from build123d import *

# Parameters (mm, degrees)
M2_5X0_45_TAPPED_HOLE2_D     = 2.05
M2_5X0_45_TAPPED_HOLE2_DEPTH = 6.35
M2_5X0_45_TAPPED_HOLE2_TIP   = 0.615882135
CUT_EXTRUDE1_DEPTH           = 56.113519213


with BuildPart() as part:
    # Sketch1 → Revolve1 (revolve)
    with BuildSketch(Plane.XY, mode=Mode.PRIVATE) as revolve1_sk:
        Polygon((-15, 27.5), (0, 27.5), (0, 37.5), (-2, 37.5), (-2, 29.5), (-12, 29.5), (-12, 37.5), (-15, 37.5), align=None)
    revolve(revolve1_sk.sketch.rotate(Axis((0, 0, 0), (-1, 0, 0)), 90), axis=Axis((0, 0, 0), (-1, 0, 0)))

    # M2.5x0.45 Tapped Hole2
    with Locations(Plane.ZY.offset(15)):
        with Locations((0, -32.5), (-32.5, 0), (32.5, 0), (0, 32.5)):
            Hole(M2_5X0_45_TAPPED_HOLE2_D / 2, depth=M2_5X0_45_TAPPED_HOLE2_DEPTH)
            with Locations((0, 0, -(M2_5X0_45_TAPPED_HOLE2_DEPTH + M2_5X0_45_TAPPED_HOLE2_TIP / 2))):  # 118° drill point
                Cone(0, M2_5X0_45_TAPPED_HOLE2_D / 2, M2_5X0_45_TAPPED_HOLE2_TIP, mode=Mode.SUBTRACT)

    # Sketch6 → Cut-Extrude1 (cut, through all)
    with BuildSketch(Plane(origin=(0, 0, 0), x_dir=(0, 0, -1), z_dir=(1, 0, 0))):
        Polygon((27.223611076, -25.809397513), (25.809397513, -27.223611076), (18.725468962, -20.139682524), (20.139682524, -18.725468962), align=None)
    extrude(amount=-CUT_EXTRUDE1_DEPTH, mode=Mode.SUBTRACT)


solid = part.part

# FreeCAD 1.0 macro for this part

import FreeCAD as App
import Part
import Sketcher
Q = App.Units.Quantity

doc = App.newDocument("Part")
params = doc.addObject("Spreadsheet::Sheet", "Params")
for row, (alias, value) in enumerate([
    ("sketch1_width", "15 mm"),
    ("sketch1_width2", "2 mm"),
    ("sketch1_width3", "10 mm"),
    ("sketch1_height", "8 mm"),
    ("revolution_angle", "360 deg"),
    ("sketch2_diameter", "2.05 mm"),
    ("hole_diameter", "2.05 mm"),
    ("hole_depth", "6.35 mm"),
    ("sketch3_length", "2 mm"),
], start=1):
    params.set(f"A{row}", alias)
    params.set(f"B{row}", "=" + value)
    params.setAlias(f"B{row}", alias)

body = doc.addObject("PartDesign::Body", "Body")

# Sketch on XY plane
sketch1 = body.newObject("Sketcher::SketchObject", "Sketch")
sketch1.AttachmentSupport = (doc.getObject("XY_Plane"), [""])
sketch1.MapMode = "FlatFace"
sketch1.addGeometry(Part.LineSegment(App.Vector(-15, 27.5, 0), App.Vector(0, 27.5, 0)), False)
sketch1.addGeometry(Part.LineSegment(App.Vector(0, 27.5, 0), App.Vector(0, 37.5, 0)), False)
sketch1.addGeometry(Part.LineSegment(App.Vector(0, 37.5, 0), App.Vector(-2, 37.5, 0)), False)
sketch1.addGeometry(Part.LineSegment(App.Vector(-2, 37.5, 0), App.Vector(-2, 29.5, 0)), False)
sketch1.addGeometry(Part.LineSegment(App.Vector(-2, 29.5, 0), App.Vector(-12, 29.5, 0)), False)
sketch1.addGeometry(Part.LineSegment(App.Vector(-12, 29.5, 0), App.Vector(-12, 37.5, 0)), False)
sketch1.addGeometry(Part.LineSegment(App.Vector(-12, 37.5, 0), App.Vector(-15, 37.5, 0)), False)
sketch1.addGeometry(Part.LineSegment(App.Vector(-15, 37.5, 0), App.Vector(-15, 27.5, 0)), False)
sketch1.addConstraint(Sketcher.Constraint("Coincident", 0, 2, 1, 1))
sketch1.addConstraint(Sketcher.Constraint("Coincident", 1, 2, 2, 1))
sketch1.addConstraint(Sketcher.Constraint("Coincident", 2, 2, 3, 1))
sketch1.addConstraint(Sketcher.Constraint("Coincident", 3, 2, 4, 1))
sketch1.addConstraint(Sketcher.Constraint("Coincident", 4, 2, 5, 1))
sketch1.addConstraint(Sketcher.Constraint("Coincident", 5, 2, 6, 1))
sketch1.addConstraint(Sketcher.Constraint("Coincident", 6, 2, 7, 1))
sketch1.addConstraint(Sketcher.Constraint("Coincident", 7, 2, 0, 1))
sketch1.addConstraint(Sketcher.Constraint("Horizontal", 0))
sketch1.addConstraint(Sketcher.Constraint("Vertical", 1))
sketch1.addConstraint(Sketcher.Constraint("Horizontal", 2))
sketch1.addConstraint(Sketcher.Constraint("Vertical", 3))
sketch1.addConstraint(Sketcher.Constraint("Horizontal", 4))
sketch1.addConstraint(Sketcher.Constraint("Vertical", 5))
sketch1.addConstraint(Sketcher.Constraint("Horizontal", 6))
sketch1.addConstraint(Sketcher.Constraint("Vertical", 7))
sketch1.addConstraint(Sketcher.Constraint("PointOnObject", 0, 2, -2))
sketch1.addConstraint(Sketcher.Constraint("Horizontal", 2, 2, 5, 2))
sketch1.addConstraint(Sketcher.Constraint("Equal", 4, 1))
sketch1.addConstraint(Sketcher.Constraint("DistanceX", 0, 1, 0, 2, Q("15 mm")))
sketch1.addConstraint(Sketcher.Constraint("DistanceX", 2, 2, 2, 1, Q("2 mm")))
sketch1.addConstraint(Sketcher.Constraint("DistanceX", 4, 2, 4, 1, Q("10 mm")))
sketch1.addConstraint(Sketcher.Constraint("DistanceY", 3, 2, 3, 1, Q("8 mm")))
sketch1.addConstraint(Sketcher.Constraint("DistanceY", -1, 1, 0, 2, Q("27.5 mm")))
sketch1.setExpression("Constraints[19]", "Params.sketch1_width")
sketch1.setExpression("Constraints[20]", "Params.sketch1_width2")
sketch1.setExpression("Constraints[21]", "Params.sketch1_width3")
sketch1.setExpression("Constraints[22]", "Params.sketch1_height")
revolution = body.newObject("PartDesign::Revolution", "Revolution")
revolution.Profile = sketch1
revolution.ReferenceAxis = (sketch1, ["H_Axis"])
revolution.setExpression("Angle", "Params.revolution_angle")

# Sketch on YZ plane
sketch2 = body.newObject("Sketcher::SketchObject", "Sketch001")
sketch2.AttachmentSupport = (doc.getObject("YZ_Plane"), [""])
sketch2.MapMode = "FlatFace"
sketch2.AttachmentOffset = App.Placement(App.Vector(0, 0, -15), App.Rotation())
sketch2.addGeometry(Part.Circle(App.Vector(-32.5, 0, 0), App.Vector(0, 0, 1), 1), False)
sketch2.addGeometry(Part.Circle(App.Vector(0, -32.5, 0), App.Vector(0, 0, 1), 1), False)
sketch2.addGeometry(Part.Circle(App.Vector(0, 32.5, 0), App.Vector(0, 0, 1), 1), False)
sketch2.addGeometry(Part.Circle(App.Vector(32.5, 0, 0), App.Vector(0, 0, 1), 1), False)
sketch2.addConstraint(Sketcher.Constraint("Equal", 0, 1))
sketch2.addConstraint(Sketcher.Constraint("Equal", 1, 2))
sketch2.addConstraint(Sketcher.Constraint("Equal", 2, 3))
sketch2.addConstraint(Sketcher.Constraint("Symmetric", 1, 3, 2, 3, -1, 1))
sketch2.addConstraint(Sketcher.Constraint("Symmetric", 0, 3, 3, 3, -1, 1))
sketch2.addConstraint(Sketcher.Constraint("PointOnObject", 0, 3, -1))
sketch2.addConstraint(Sketcher.Constraint("PointOnObject", 1, 3, -2))
sketch2.addConstraint(Sketcher.Constraint("Diameter", 0, Q("2.05 mm")))
sketch2.addConstraint(Sketcher.Constraint("DistanceY", 1, 3, 2, 3, Q("65 mm")))
sketch2.addConstraint(Sketcher.Constraint("DistanceX", 0, 3, 3, 3, Q("65 mm")))
sketch2.setExpression("Constraints[7]", "Params.sketch2_diameter")
doc.recompute()
hole = body.newObject("PartDesign::Hole", "Hole")
hole.Profile = sketch2
hole.ThreadType = "None"
hole.setExpression("Diameter", "Params.hole_diameter")
hole.DepthType = "Dimension"
hole.setExpression("Depth", "Params.hole_depth")
hole.DrillPoint = "Angled"
hole.DrillPointAngle = 118
hole.Reversed = True

# Sketch on YZ plane
sketch3 = body.newObject("Sketcher::SketchObject", "Sketch002")
sketch3.AttachmentSupport = (doc.getObject("YZ_Plane"), [""])
sketch3.MapMode = "FlatFace"
sketch3.addGeometry(Part.LineSegment(App.Vector(-27.2, -25.8, 0), App.Vector(-25.8, -27.2, 0)), False)
sketch3.addGeometry(Part.LineSegment(App.Vector(-25.8, -27.2, 0), App.Vector(-18.7, -20.1, 0)), False)
sketch3.addGeometry(Part.LineSegment(App.Vector(-18.7, -20.1, 0), App.Vector(-20.1, -18.7, 0)), False)
sketch3.addGeometry(Part.LineSegment(App.Vector(-20.1, -18.7, 0), App.Vector(-27.2, -25.8, 0)), False)
sketch3.addConstraint(Sketcher.Constraint("Coincident", 0, 2, 1, 1))
sketch3.addConstraint(Sketcher.Constraint("Coincident", 1, 2, 2, 1))
sketch3.addConstraint(Sketcher.Constraint("Coincident", 2, 2, 3, 1))
sketch3.addConstraint(Sketcher.Constraint("Coincident", 3, 2, 0, 1))
sketch3.addConstraint(Sketcher.Constraint("Perpendicular", 0, 1))
sketch3.addConstraint(Sketcher.Constraint("Perpendicular", 1, 2))
sketch3.addConstraint(Sketcher.Constraint("Perpendicular", 2, 3))
sketch3.addConstraint(Sketcher.Constraint("Angle", 0, Q("-45 deg")))
sketch3.addConstraint(Sketcher.Constraint("Distance", 0, Q("2 mm")))
sketch3.addConstraint(Sketcher.Constraint("DistanceY", 0, 2, -1, 1, Q("27.223611 mm")))
sketch3.addConstraint(Sketcher.Constraint("DistanceX", 1, 2, -1, 1, Q("18.725469 mm")))
sketch3.addConstraint(Sketcher.Constraint("DistanceY", 2, 2, -1, 1, Q("18.725469 mm")))
sketch3.setExpression("Constraints[8]", "Params.sketch3_length")
pocket1 = body.newObject("PartDesign::Pocket", "Pocket")
pocket1.Profile = sketch3
pocket1.Type = "ThroughAll"

doc.recompute()
